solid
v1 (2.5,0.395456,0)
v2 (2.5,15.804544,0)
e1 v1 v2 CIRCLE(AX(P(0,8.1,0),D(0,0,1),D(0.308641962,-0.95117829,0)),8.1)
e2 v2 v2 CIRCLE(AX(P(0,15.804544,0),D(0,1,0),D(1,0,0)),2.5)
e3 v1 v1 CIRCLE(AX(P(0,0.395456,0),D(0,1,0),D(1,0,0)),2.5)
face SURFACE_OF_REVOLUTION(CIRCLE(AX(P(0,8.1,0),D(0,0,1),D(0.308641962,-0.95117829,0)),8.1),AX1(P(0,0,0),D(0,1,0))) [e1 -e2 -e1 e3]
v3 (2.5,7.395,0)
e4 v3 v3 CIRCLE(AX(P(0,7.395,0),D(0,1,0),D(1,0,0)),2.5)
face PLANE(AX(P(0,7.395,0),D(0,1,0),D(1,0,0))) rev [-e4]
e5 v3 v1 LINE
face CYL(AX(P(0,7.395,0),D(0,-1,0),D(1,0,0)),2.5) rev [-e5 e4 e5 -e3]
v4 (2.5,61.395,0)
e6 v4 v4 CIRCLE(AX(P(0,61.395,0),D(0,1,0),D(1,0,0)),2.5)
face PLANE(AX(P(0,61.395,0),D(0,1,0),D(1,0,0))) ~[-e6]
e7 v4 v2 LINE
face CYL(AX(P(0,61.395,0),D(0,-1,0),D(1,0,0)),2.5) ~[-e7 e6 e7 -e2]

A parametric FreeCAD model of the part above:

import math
import FreeCAD as App
import Part
import Sketcher
Q = App.Units.Quantity

doc = App.newDocument("Part")
body = doc.addObject("PartDesign::Body", "Body")

sketch1 = body.newObject("Sketcher::SketchObject", "Sketch")
sketch1.AttachmentSupport = (doc.getObject("XY_Plane"), [""])
sketch1.MapMode = "FlatFace"
sketch1.addGeometry([
    Part.ArcOfCircle(Part.Circle(App.Vector(0, 8.1, 0), App.Vector(0, 0, 1), 8.1), math.radians(-72), math.radians(72)),
    Part.LineSegment(App.Vector(2.5, 15.8, 0), App.Vector(2.5, 61.4, 0)),
    Part.LineSegment(App.Vector(2.5, 61.4, 0), App.Vector(0, 61.4, 0)),
    Part.LineSegment(App.Vector(0, 61.4, 0), App.Vector(0, 7.4, 0)),
    Part.LineSegment(App.Vector(0, 7.4, 0), App.Vector(2.5, 7.4, 0)),
    Part.LineSegment(App.Vector(2.5, 7.4, 0), App.Vector(2.5, 0.4, 0)),
], False)
sketch1.addConstraint([
    Sketcher.Constraint("Coincident", 0, 2, 1, 1),
    Sketcher.Constraint("Coincident", 1, 2, 2, 1),
    Sketcher.Constraint("Coincident", 2, 2, 3, 1),
    Sketcher.Constraint("Coincident", 3, 2, 4, 1),
    Sketcher.Constraint("Coincident", 4, 2, 5, 1),
    Sketcher.Constraint("Coincident", 5, 2, 0, 1),
    Sketcher.Constraint("Vertical", 1),
    Sketcher.Constraint("Horizontal", 2),
    Sketcher.Constraint("Vertical", 3),
    Sketcher.Constraint("Horizontal", 4),
    Sketcher.Constraint("Vertical", 5),
    Sketcher.Constraint("PointOnObject", 0, 3, -2),
    Sketcher.Constraint("PointOnObject", 2, 2, -2),
    Sketcher.Constraint("Vertical", 1, 2, 4, 2),
    Sketcher.Constraint("Radius", 0, Q("8.1 mm")),
    Sketcher.Constraint("DistanceY", 3, 2, 3, 1, Q("54 mm")),
    Sketcher.Constraint("DistanceX", 2, 2, 2, 1, Q("2.5 mm")),
    Sketcher.Constraint("DistanceY", -1, 1, 0, 3, Q("8.1 mm")),
    Sketcher.Constraint("DistanceY", -1, 1, 1, 2, Q("61.395 mm")),
])
revolution = body.newObject("PartDesign::Revolution", "Revolution")
revolution.Profile = sketch1
revolution.ReferenceAxis = (sketch1, ["V_Axis"])
revolution.Angle = 360

doc.recompute()
